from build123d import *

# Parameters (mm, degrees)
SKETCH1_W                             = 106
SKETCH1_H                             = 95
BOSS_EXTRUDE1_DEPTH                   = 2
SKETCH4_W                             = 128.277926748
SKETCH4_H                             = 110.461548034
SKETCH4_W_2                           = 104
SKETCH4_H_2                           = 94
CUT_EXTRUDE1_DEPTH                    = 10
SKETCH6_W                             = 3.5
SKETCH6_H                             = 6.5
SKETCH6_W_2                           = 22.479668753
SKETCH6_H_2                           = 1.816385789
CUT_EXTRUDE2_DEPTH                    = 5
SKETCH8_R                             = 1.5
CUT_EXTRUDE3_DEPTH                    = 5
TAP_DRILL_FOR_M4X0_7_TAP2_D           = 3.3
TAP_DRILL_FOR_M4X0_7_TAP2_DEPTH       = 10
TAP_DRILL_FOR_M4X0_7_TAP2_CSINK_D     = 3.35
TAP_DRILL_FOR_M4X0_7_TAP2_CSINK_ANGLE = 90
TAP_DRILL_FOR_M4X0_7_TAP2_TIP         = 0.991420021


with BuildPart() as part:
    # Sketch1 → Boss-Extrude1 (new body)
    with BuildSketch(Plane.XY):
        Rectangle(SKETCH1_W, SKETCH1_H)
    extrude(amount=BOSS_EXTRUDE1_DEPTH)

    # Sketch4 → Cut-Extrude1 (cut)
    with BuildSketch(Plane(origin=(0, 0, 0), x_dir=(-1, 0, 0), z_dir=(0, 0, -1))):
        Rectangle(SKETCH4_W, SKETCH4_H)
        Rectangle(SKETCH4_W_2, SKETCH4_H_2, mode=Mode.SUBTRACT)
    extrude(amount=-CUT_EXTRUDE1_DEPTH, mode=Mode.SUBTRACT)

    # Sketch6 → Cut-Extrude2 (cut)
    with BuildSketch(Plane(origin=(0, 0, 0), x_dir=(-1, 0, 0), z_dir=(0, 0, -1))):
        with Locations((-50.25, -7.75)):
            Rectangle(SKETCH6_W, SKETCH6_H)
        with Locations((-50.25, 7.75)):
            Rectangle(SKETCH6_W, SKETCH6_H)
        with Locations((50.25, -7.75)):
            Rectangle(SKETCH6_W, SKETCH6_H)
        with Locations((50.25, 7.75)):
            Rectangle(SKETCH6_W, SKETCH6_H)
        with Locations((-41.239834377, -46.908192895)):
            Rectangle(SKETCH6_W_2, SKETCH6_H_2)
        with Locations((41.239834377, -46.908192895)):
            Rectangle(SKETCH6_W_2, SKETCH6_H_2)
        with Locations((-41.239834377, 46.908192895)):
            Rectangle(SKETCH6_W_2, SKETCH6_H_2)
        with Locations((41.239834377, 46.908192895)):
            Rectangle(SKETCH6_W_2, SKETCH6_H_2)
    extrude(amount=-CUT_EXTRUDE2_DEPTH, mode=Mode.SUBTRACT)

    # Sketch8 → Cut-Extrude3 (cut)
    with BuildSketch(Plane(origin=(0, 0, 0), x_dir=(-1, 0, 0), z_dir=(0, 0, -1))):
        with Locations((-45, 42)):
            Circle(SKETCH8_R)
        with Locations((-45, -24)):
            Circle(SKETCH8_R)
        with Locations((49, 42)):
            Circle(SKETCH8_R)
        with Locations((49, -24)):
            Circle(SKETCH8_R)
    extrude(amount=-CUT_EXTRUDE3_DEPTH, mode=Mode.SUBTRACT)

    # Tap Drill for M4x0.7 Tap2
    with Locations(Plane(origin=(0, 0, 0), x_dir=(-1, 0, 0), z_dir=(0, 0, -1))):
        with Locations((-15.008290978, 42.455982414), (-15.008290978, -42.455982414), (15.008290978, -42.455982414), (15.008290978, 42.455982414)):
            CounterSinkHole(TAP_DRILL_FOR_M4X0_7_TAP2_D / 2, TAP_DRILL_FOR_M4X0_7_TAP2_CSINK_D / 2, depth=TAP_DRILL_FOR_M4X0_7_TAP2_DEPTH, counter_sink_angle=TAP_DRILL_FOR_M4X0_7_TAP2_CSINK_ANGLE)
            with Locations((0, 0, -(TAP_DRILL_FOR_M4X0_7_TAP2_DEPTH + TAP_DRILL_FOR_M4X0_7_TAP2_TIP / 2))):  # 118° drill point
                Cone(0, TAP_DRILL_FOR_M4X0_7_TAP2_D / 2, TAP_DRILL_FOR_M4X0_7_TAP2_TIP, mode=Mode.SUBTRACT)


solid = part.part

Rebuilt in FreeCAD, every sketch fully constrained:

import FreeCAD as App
import Part
import Sketcher
from FreeCAD import Vector
Q = App.Units.Quantity

doc = App.newDocument("Part")
body = doc.addObject("PartDesign::Body", "Body")

# Sketch on XY plane
sketch1 = doc.addObject("Sketcher::SketchObject", "Sketch")
body.addObject(sketch1)
sketch1.AttachmentSupport = (doc.XY_Plane, [""])
sketch1.MapMode = "FlatFace"
sketch1.addGeometry(Part.LineSegment(Vector(-53, 48, 0), Vector(-53, -48, 0)), False)
sketch1.addGeometry(Part.LineSegment(Vector(-53, -48, 0), Vector(53, -48, 0)), False)
sketch1.addGeometry(Part.LineSegment(Vector(53, -48, 0), Vector(53, 48, 0)), False)
sketch1.addGeometry(Part.LineSegment(Vector(53, 48, 0), Vector(-53, 48, 0)), False)
sketch1.addConstraint(Sketcher.Constraint("Coincident", 0, 2, 1, 1))
sketch1.addConstraint(Sketcher.Constraint("Coincident", 1, 2, 2, 1))
sketch1.addConstraint(Sketcher.Constraint("Coincident", 2, 2, 3, 1))
sketch1.addConstraint(Sketcher.Constraint("Coincident", 3, 2, 0, 1))
sketch1.addConstraint(Sketcher.Constraint("Vertical", 0))
sketch1.addConstraint(Sketcher.Constraint("Horizontal", 1))
sketch1.addConstraint(Sketcher.Constraint("Vertical", 2))
sketch1.addConstraint(Sketcher.Constraint("Horizontal", 3))
sketch1.addConstraint(Sketcher.Constraint("Symmetric", 0, 2, 2, 2, -1, 1))
sketch1.addConstraint(Sketcher.Constraint("DistanceX", 1, 1, 1, 2, Q("106 mm")))
sketch1.addConstraint(Sketcher.Constraint("DistanceY", 0, 2, 0, 1, Q("95 mm")))
pad1 = doc.addObject("PartDesign::Pad", "Pad")
body.addObject(pad1)
pad1.Profile = sketch1
pad1.Length = 2

# Sketch on XY plane
sketch2 = doc.addObject("Sketcher::SketchObject", "Sketch001")
body.addObject(sketch2)
sketch2.AttachmentSupport = (doc.XY_Plane, [""])
sketch2.MapMode = "FlatFace"
sketch2.addGeometry(Part.LineSegment(Vector(64, 55, 0), Vector(64, -55, 0)), False)
sketch2.addGeometry(Part.LineSegment(Vector(64, -55, 0), Vector(-64, -55, 0)), False)
sketch2.addGeometry(Part.LineSegment(Vector(-64, -55, 0), Vector(-64, 55, 0)), False)
sketch2.addGeometry(Part.LineSegment(Vector(-64, 55, 0), Vector(64, 55, 0)), False)
sketch2.addGeometry(Part.LineSegment(Vector(-52, -47, 0), Vector(52, -47, 0)), False)
sketch2.addGeometry(Part.LineSegment(Vector(52, -47, 0), Vector(52, 47, 0)), False)
sketch2.addGeometry(Part.LineSegment(Vector(52, 47, 0), Vector(-52, 47, 0)), False)
sketch2.addGeometry(Part.LineSegment(Vector(-52, 47, 0), Vector(-52, -47, 0)), False)
sketch2.addConstraint(Sketcher.Constraint("Coincident", 0, 2, 1, 1))
sketch2.addConstraint(Sketcher.Constraint("Coincident", 1, 2, 2, 1))
sketch2.addConstraint(Sketcher.Constraint("Coincident", 2, 2, 3, 1))
sketch2.addConstraint(Sketcher.Constraint("Coincident", 3, 2, 0, 1))
sketch2.addConstraint(Sketcher.Constraint("Coincident", 4, 2, 5, 1))
sketch2.addConstraint(Sketcher.Constraint("Coincident", 5, 2, 6, 1))
sketch2.addConstraint(Sketcher.Constraint("Coincident", 6, 2, 7, 1))
sketch2.addConstraint(Sketcher.Constraint("Coincident", 7, 2, 4, 1))
sketch2.addConstraint(Sketcher.Constraint("Vertical", 0))
sketch2.addConstraint(Sketcher.Constraint("Horizontal", 1))
sketch2.addConstraint(Sketcher.Constraint("Vertical", 2))
sketch2.addConstraint(Sketcher.Constraint("Horizontal", 3))
sketch2.addConstraint(Sketcher.Constraint("Horizontal", 4))
sketch2.addConstraint(Sketcher.Constraint("Vertical", 5))
sketch2.addConstraint(Sketcher.Constraint("Horizontal", 6))
sketch2.addConstraint(Sketcher.Constraint("Vertical", 7))
sketch2.addConstraint(Sketcher.Constraint("Symmetric", 0, 2, 2, 2, -1, 1))
sketch2.addConstraint(Sketcher.Constraint("Symmetric", 4, 2, 6, 2, -1, 1))
sketch2.addConstraint(Sketcher.Constraint("DistanceX", 4, 1, 4, 2, Q("104 mm")))
sketch2.addConstraint(Sketcher.Constraint("DistanceY", 5, 1, 5, 2, Q("94 mm")))
sketch2.addConstraint(Sketcher.Constraint("DistanceY", 0, 2, 0, 1, Q("110.461548 mm")))
sketch2.addConstraint(Sketcher.Constraint("DistanceX", 1, 2, 1, 1, Q("128.277927 mm")))
pocket1 = doc.addObject("PartDesign::Pocket", "Pocket")
body.addObject(pocket1)
pocket1.Profile = sketch2
pocket1.Length = 10
pocket1.Reversed = True

# Sketch on XY plane
sketch3 = doc.addObject("Sketcher::SketchObject", "Sketch002")
body.addObject(sketch3)
sketch3.AttachmentSupport = (doc.XY_Plane, [""])
sketch3.MapMode = "FlatFace"
sketch3.addGeometry(Part.LineSegment(Vector(52, -4.5, 0), Vector(52, -11, 0)), False)
sketch3.addGeometry(Part.LineSegment(Vector(52, -11, 0), Vector(48.5, -11, 0)), False)
sketch3.addGeometry(Part.LineSegment(Vector(48.5, -11, 0), Vector(48.5, -4.5, 0)), False)
sketch3.addGeometry(Part.LineSegment(Vector(48.5, -4.5, 0), Vector(52, -4.5, 0)), False)
sketch3.addGeometry(Part.LineSegment(Vector(52, 11, 0), Vector(52, 4.5, 0)), False)
sketch3.addGeometry(Part.LineSegment(Vector(52, 4.5, 0), Vector(48.5, 4.5, 0)), False)
sketch3.addGeometry(Part.LineSegment(Vector(48.5, 4.5, 0), Vector(48.5, 11, 0)), False)
sketch3.addGeometry(Part.LineSegment(Vector(48.5, 11, 0), Vector(52, 11, 0)), False)
sketch3.addGeometry(Part.LineSegment(Vector(-48.5, -4.5, 0), Vector(-48.5, -11, 0)), False)
sketch3.addGeometry(Part.LineSegment(Vector(-48.5, -11, 0), Vector(-52, -11, 0)), False)
sketch3.addGeometry(Part.LineSegment(Vector(-52, -11, 0), Vector(-52, -4.5, 0)), False)
sketch3.addGeometry(Part.LineSegment(Vector(-52, -4.5, 0), Vector(-48.5, -4.5, 0)), False)
sketch3.addGeometry(Part.LineSegment(Vector(-48.5, 11, 0), Vector(-48.5, 4.5, 0)), False)
sketch3.addGeometry(Part.LineSegment(Vector(-48.5, 4.5, 0), Vector(-52, 4.5, 0)), False)
sketch3.addGeometry(Part.LineSegment(Vector(-52, 4.5, 0), Vector(-52, 11, 0)), False)
sketch3.addGeometry(Part.LineSegment(Vector(-52, 11, 0), Vector(-48.5, 11, 0)), False)
sketch3.addGeometry(Part.LineSegment(Vector(52.5, -46, 0), Vector(52.5, -47.8, 0)), False)
sketch3.addGeometry(Part.LineSegment(Vector(52.5, -47.8, 0), Vector(30, -47.8, 0)), False)
sketch3.addGeometry(Part.LineSegment(Vector(30, -47.8, 0), Vector(30, -46, 0)), False)
sketch3.addGeometry(Part.LineSegment(Vector(30, -46, 0), Vector(52.5, -46, 0)), False)
sketch3.addGeometry(Part.LineSegment(Vector(-30, -46, 0), Vector(-30, -47.8, 0)), False)
sketch3.addGeometry(Part.LineSegment(Vector(-30, -47.8, 0), Vector(-52.5, -47.8, 0)), False)
sketch3.addGeometry(Part.LineSegment(Vector(-52.5, -47.8, 0), Vector(-52.5, -46, 0)), False)
sketch3.addGeometry(Part.LineSegment(Vector(-52.5, -46, 0), Vector(-30, -46, 0)), False)
sketch3.addGeometry(Part.LineSegment(Vector(52.5, 47.8, 0), Vector(52.5, 46, 0)), False)
sketch3.addGeometry(Part.LineSegment(Vector(52.5, 46, 0), Vector(30, 46, 0)), False)
sketch3.addGeometry(Part.LineSegment(Vector(30, 46, 0), Vector(30, 47.8, 0)), False)
sketch3.addGeometry(Part.LineSegment(Vector(30, 47.8, 0), Vector(52.5, 47.8, 0)), False)
sketch3.addGeometry(Part.LineSegment(Vector(-30, 47.8, 0), Vector(-30, 46, 0)), False)
sketch3.addGeometry(Part.LineSegment(Vector(-30, 46, 0), Vector(-52.5, 46, 0)), False)
sketch3.addGeometry(Part.LineSegment(Vector(-52.5, 46, 0), Vector(-52.5, 47.8, 0)), False)
sketch3.addGeometry(Part.LineSegment(Vector(-52.5, 47.8, 0), Vector(-30, 47.8, 0)), False)
sketch3.addConstraint(Sketcher.Constraint("Coincident", 0, 2, 1, 1))
sketch3.addConstraint(Sketcher.Constraint("Coincident", 1, 2, 2, 1))
sketch3.addConstraint(Sketcher.Constraint("Coincident", 2, 2, 3, 1))
sketch3.addConstraint(Sketcher.Constraint("Coincident", 3, 2, 0, 1))
sketch3.addConstraint(Sketcher.Constraint("Coincident", 4, 2, 5, 1))
sketch3.addConstraint(Sketcher.Constraint("Coincident", 5, 2, 6, 1))
sketch3.addConstraint(Sketcher.Constraint("Coincident", 6, 2, 7, 1))
sketch3.addConstraint(Sketcher.Constraint("Coincident", 7, 2, 4, 1))
sketch3.addConstraint(Sketcher.Constraint("Coincident", 8, 2, 9, 1))
sketch3.addConstraint(Sketcher.Constraint("Coincident", 9, 2, 10, 1))
sketch3.addConstraint(Sketcher.Constraint("Coincident", 10, 2, 11, 1))
sketch3.addConstraint(Sketcher.Constraint("Coincident", 11, 2, 8, 1))
sketch3.addConstraint(Sketcher.Constraint("Coincident", 12, 2, 13, 1))
sketch3.addConstraint(Sketcher.Constraint("Coincident", 13, 2, 14, 1))
sketch3.addConstraint(Sketcher.Constraint("Coincident", 14, 2, 15, 1))
sketch3.addConstraint(Sketcher.Constraint("Coincident", 15, 2, 12, 1))
sketch3.addConstraint(Sketcher.Constraint("Coincident", 16, 2, 17, 1))
sketch3.addConstraint(Sketcher.Constraint("Coincident", 17, 2, 18, 1))
sketch3.addConstraint(Sketcher.Constraint("Coincident", 18, 2, 19, 1))
sketch3.addConstraint(Sketcher.Constraint("Coincident", 19, 2, 16, 1))
sketch3.addConstraint(Sketcher.Constraint("Coincident", 20, 2, 21, 1))
sketch3.addConstraint(Sketcher.Constraint("Coincident", 21, 2, 22, 1))
sketch3.addConstraint(Sketcher.Constraint("Coincident", 22, 2, 23, 1))
sketch3.addConstraint(Sketcher.Constraint("Coincident", 23, 2, 20, 1))
sketch3.addConstraint(Sketcher.Constraint("Coincident", 24, 2, 25, 1))
sketch3.addConstraint(Sketcher.Constraint("Coincident", 25, 2, 26, 1))
sketch3.addConstraint(Sketcher.Constraint("Coincident", 26, 2, 27, 1))
sketch3.addConstraint(Sketcher.Constraint("Coincident", 27, 2, 24, 1))
sketch3.addConstraint(Sketcher.Constraint("Coincident", 28, 2, 29, 1))
sketch3.addConstraint(Sketcher.Constraint("Coincident", 29, 2, 30, 1))
sketch3.addConstraint(Sketcher.Constraint("Coincident", 30, 2, 31, 1))
sketch3.addConstraint(Sketcher.Constraint("Coincident", 31, 2, 28, 1))
sketch3.addConstraint(Sketcher.Constraint("Vertical", 0))
sketch3.addConstraint(Sketcher.Constraint("Horizontal", 1))
sketch3.addConstraint(Sketcher.Constraint("Vertical", 2))
sketch3.addConstraint(Sketcher.Constraint("Horizontal", 3))
sketch3.addConstraint(Sketcher.Constraint("Vertical", 4))
sketch3.addConstraint(Sketcher.Constraint("Horizontal", 5))
sketch3.addConstraint(Sketcher.Constraint("Vertical", 6))
sketch3.addConstraint(Sketcher.Constraint("Horizontal", 7))
sketch3.addConstraint(Sketcher.Constraint("Vertical", 8))
sketch3.addConstraint(Sketcher.Constraint("Horizontal", 9))
sketch3.addConstraint(Sketcher.Constraint("Vertical", 10))
sketch3.addConstraint(Sketcher.Constraint("Horizontal", 11))
sketch3.addConstraint(Sketcher.Constraint("Vertical", 12))
sketch3.addConstraint(Sketcher.Constraint("Horizontal", 13))
sketch3.addConstraint(Sketcher.Constraint("Vertical", 14))
sketch3.addConstraint(Sketcher.Constraint("Horizontal", 15))
sketch3.addConstraint(Sketcher.Constraint("Vertical", 16))
sketch3.addConstraint(Sketcher.Constraint("Horizontal", 17))
sketch3.addConstraint(Sketcher.Constraint("Vertical", 18))
sketch3.addConstraint(Sketcher.Constraint("Horizontal", 19))
sketch3.addConstraint(Sketcher.Constraint("Vertical", 20))
sketch3.addConstraint(Sketcher.Constraint("Horizontal", 21))
sketch3.addConstraint(Sketcher.Constraint("Vertical", 22))
sketch3.addConstraint(Sketcher.Constraint("Horizontal", 23))
sketch3.addConstraint(Sketcher.Constraint("Vertical", 24))
sketch3.addConstraint(Sketcher.Constraint("Horizontal", 25))
sketch3.addConstraint(Sketcher.Constraint("Vertical", 26))
sketch3.addConstraint(Sketcher.Constraint("Horizontal", 27))
sketch3.addConstraint(Sketcher.Constraint("Vertical", 28))
sketch3.addConstraint(Sketcher.Constraint("Horizontal", 29))
sketch3.addConstraint(Sketcher.Constraint("Vertical", 30))
sketch3.addConstraint(Sketcher.Constraint("Horizontal", 31))
sketch3.addConstraint(Sketcher.Constraint("Symmetric", 6, 2, 8, 2, -1, 1))
sketch3.addConstraint(Sketcher.Constraint("Symmetric", 4, 2, 10, 2, -1, 1))
sketch3.addConstraint(Sketcher.Constraint("Symmetric", 2, 2, 12, 2, -1, 1))
sketch3.addConstraint(Sketcher.Constraint("Symmetric", 0, 2, 14, 2, -1, 1))
sketch3.addConstraint(Sketcher.Constraint("Symmetric", 22, 2, 24, 2, -1, 1))
sketch3.addConstraint(Sketcher.Constraint("Symmetric", 20, 2, 26, 2, -1, 1))
sketch3.addConstraint(Sketcher.Constraint("Symmetric", 18, 2, 28, 2, -1, 1))
sketch3.addConstraint(Sketcher.Constraint("Symmetric", 16, 2, 30, 2, -1, 1))
sketch3.addConstraint(Sketcher.Constraint("Symmetric", 1, 2, 8, 2, -2))
sketch3.addConstraint(Sketcher.Constraint("Symmetric", 3, 2, 10, 2, -2))
sketch3.addConstraint(Sketcher.Constraint("Symmetric", 17, 2, 20, 2, -2))
sketch3.addConstraint(Sketcher.Constraint("Symmetric", 19, 2, 22, 2, -2))
sketch3.addConstraint(Sketcher.Constraint("DistanceX", 1, 2, 1, 1, Q("3.5 mm")))
sketch3.addConstraint(Sketcher.Constraint("DistanceY", 0, 2, 0, 1, Q("6.5 mm")))
sketch3.addConstraint(Sketcher.Constraint("DistanceX", -1, 1, 0, 2, Q("52 mm")))
sketch3.addConstraint(Sketcher.Constraint("DistanceY", 0, 2, -1, 1, Q("11 mm")))
sketch3.addConstraint(Sketcher.Constraint("DistanceX", -1, 1, 17, 2, Q("30 mm")))
sketch3.addConstraint(Sketcher.Constraint("DistanceY", 18, 2, -1, 1, Q("46 mm")))
sketch3.addConstraint(Sketcher.Constraint("DistanceX", 17, 2, 17, 1, Q("22.479669 mm")))
sketch3.addConstraint(Sketcher.Constraint("DistanceY", 16, 2, 16, 1, Q("1.816386 mm")))
pocket2 = doc.addObject("PartDesign::Pocket", "Pocket001")
body.addObject(pocket2)
pocket2.Profile = sketch3
pocket2.Length = 5
pocket2.Reversed = True

# Sketch on XY plane
sketch4 = doc.addObject("Sketcher::SketchObject", "Sketch003")
body.addObject(sketch4)
sketch4.AttachmentSupport = (doc.XY_Plane, [""])
sketch4.MapMode = "FlatFace"
sketch4.addGeometry(Part.Circle(Vector(45, 42, 0), Vector(0, 0, 1), 1.5), False)
sketch4.addGeometry(Part.Circle(Vector(45, -24, 0), Vector(0, 0, 1), 1.5), False)
sketch4.addGeometry(Part.Circle(Vector(-49, 42, 0), Vector(0, 0, 1), 1.5), False)
sketch4.addGeometry(Part.Circle(Vector(-49, -24, 0), Vector(0, 0, 1), 1.5), False)
sketch4.addConstraint(Sketcher.Constraint("Equal", 0, 1))
sketch4.addConstraint(Sketcher.Constraint("Equal", 1, 2))
sketch4.addConstraint(Sketcher.Constraint("Equal", 2, 3))
sketch4.addConstraint(Sketcher.Constraint("Horizontal", 0, 3, 2, 3))
sketch4.addConstraint(Sketcher.Constraint("Horizontal", 1, 3, 3, 3))
sketch4.addConstraint(Sketcher.Constraint("Vertical", 0, 3, 1, 3))
sketch4.addConstraint(Sketcher.Constraint("Vertical", 2, 3, 3, 3))
sketch4.addConstraint(Sketcher.Constraint("Diameter", 0, Q("3 mm")))
sketch4.addConstraint(Sketcher.Constraint("DistanceX", -1, 1, 0, 3, Q("45 mm")))
sketch4.addConstraint(Sketcher.Constraint("DistanceY", -1, 1, 0, 3, Q("42 mm")))
sketch4.addConstraint(Sketcher.Constraint("DistanceY", 1, 3, -1, 1, Q("24 mm")))
sketch4.addConstraint(Sketcher.Constraint("DistanceX", 2, 3, -1, 1, Q("49 mm")))
pocket3 = doc.addObject("PartDesign::Pocket", "Pocket002")
body.addObject(pocket3)
pocket3.Profile = sketch4
pocket3.Length = 5
pocket3.Reversed = True

# Sketch on XY plane
sketch5 = doc.addObject("Sketcher::SketchObject", "Sketch004")
body.addObject(sketch5)
sketch5.AttachmentSupport = (doc.XY_Plane, [""])
sketch5.MapMode = "FlatFace"
sketch5.addGeometry(Part.Circle(Vector(15, 42.5, 0), Vector(0, 0, 1), 1.6), False)
sketch5.addGeometry(Part.Circle(Vector(15, -42.5, 0), Vector(0, 0, 1), 1.6), False)
sketch5.addGeometry(Part.Circle(Vector(-15, -42.5, 0), Vector(0, 0, 1), 1.6), False)
sketch5.addGeometry(Part.Circle(Vector(-15, 42.5, 0), Vector(0, 0, 1), 1.6), False)
sketch5.addConstraint(Sketcher.Constraint("Equal", 0, 1))
sketch5.addConstraint(Sketcher.Constraint("Equal", 1, 2))
sketch5.addConstraint(Sketcher.Constraint("Equal", 2, 3))
sketch5.addConstraint(Sketcher.Constraint("Symmetric", 0, 3, 2, 3, -1, 1))
sketch5.addConstraint(Sketcher.Constraint("Symmetric", 1, 3, 3, 3, -1, 1))
sketch5.addConstraint(Sketcher.Constraint("Symmetric", 1, 3, 2, 3, -2))
sketch5.addConstraint(Sketcher.Constraint("Diameter", 0, Q("3.3 mm")))
sketch5.addConstraint(Sketcher.Constraint("DistanceX", -1, 1, 0, 3, Q("15.008291 mm")))
sketch5.addConstraint(Sketcher.Constraint("DistanceY", -1, 1, 0, 3, Q("42.455982 mm")))
doc.recompute()
hole = doc.addObject("PartDesign::Hole", "Hole")
body.addObject(hole)
hole.Profile = sketch5
hole.ThreadType = "None"
hole.Diameter = 3.3
hole.DepthType = "Dimension"
hole.Depth = 10
hole.DrillPoint = "Angled"
hole.DrillPointAngle = 118
hole.HoleCutType = "Countersink"
hole.HoleCutDiameter = 3.35
hole.HoleCutCountersinkAngle = 90
hole.Reversed = True

doc.recompute()
